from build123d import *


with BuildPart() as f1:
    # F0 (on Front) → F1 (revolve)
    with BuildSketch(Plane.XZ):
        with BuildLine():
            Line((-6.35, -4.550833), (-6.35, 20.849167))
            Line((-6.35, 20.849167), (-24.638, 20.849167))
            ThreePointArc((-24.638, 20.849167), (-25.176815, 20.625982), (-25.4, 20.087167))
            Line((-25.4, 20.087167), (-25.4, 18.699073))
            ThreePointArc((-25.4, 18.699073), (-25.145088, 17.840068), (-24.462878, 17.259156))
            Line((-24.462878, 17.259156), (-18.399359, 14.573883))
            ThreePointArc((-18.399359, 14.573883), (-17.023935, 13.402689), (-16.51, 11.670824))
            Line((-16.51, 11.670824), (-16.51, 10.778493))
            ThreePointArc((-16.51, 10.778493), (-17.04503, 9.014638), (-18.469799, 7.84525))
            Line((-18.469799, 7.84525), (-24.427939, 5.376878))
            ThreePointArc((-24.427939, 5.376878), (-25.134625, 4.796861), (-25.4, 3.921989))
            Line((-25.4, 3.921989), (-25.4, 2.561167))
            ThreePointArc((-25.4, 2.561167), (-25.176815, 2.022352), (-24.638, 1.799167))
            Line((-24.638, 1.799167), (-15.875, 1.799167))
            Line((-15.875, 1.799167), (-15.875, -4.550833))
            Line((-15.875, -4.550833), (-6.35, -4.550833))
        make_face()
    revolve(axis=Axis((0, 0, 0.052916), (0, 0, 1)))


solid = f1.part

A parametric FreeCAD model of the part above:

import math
import FreeCAD as App
import Part
import Sketcher

V = App.Vector
Q = App.Units.Quantity

doc = App.newDocument("Part")
body = doc.addObject("PartDesign::Body", "Body")

sketch1 = body.newObject("Sketcher::SketchObject", "Sketch")
sketch1.AttachmentSupport = (doc.getObject("XZ_Plane"), [""])
sketch1.MapMode = "FlatFace"
sketch1.addGeometry([
    Part.LineSegment(V(-6.3, -4.6, 0), V(-6.3, 20.8, 0)),
    Part.LineSegment(V(-6.3, 20.8, 0), V(-24.6, 20.8, 0)),
    Part.ArcOfCircle(Part.Circle(V(-24.6, 20.1, 0), V(0, 0, 1), 0.8), math.radians(90), math.radians(180)),
    Part.LineSegment(V(-25.4, 20.1, 0), V(-25.4, 18.7, 0)),
    Part.ArcOfCircle(Part.Circle(V(-23.8, 18.7, 0), V(0, 0, 1), 1.6), math.radians(-180), math.radians(-114)),
    Part.LineSegment(V(-24.5, 17.3, 0), V(-18.4, 14.6, 0)),
    Part.ArcOfCircle(Part.Circle(V(-19.7, 11.7, 0), V(0, 0, 1), 3.2), math.radians(0), math.radians(66)),
    Part.LineSegment(V(-16.5, 11.7, 0), V(-16.5, 10.8, 0)),
    Part.ArcOfCircle(Part.Circle(V(-19.7, 10.8, 0), V(0, 0, 1), 3.2), math.radians(-67), math.radians(0)),
    Part.LineSegment(V(-18.5, 7.8, 0), V(-24.4, 5.4, 0)),
    Part.ArcOfCircle(Part.Circle(V(-23.8, 3.9, 0), V(0, 0, 1), 1.6), math.radians(113), math.radians(180)),
    Part.LineSegment(V(-25.4, 3.9, 0), V(-25.4, 2.6, 0)),
    Part.ArcOfCircle(Part.Circle(V(-24.6, 2.6, 0), V(0, 0, 1), 0.8), math.radians(-180), math.radians(-90)),
    Part.LineSegment(V(-24.6, 1.8, 0), V(-15.9, 1.8, 0)),
    Part.LineSegment(V(-15.9, 1.8, 0), V(-15.9, -4.6, 0)),
    Part.LineSegment(V(-15.9, -4.6, 0), V(-6.3, -4.6, 0)),
], False)
sketch1.addConstraint([
    Sketcher.Constraint("Coincident", 0, 2, 1, 1),
    Sketcher.Constraint("Tangent", 1, 2, 2, 1),
    Sketcher.Constraint("Tangent", 2, 2, 3, 1),
    Sketcher.Constraint("Tangent", 3, 2, 4, 1),
    Sketcher.Constraint("Tangent", 4, 2, 5, 1),
    Sketcher.Constraint("Tangent", 5, 2, 6, 2),
    Sketcher.Constraint("Tangent", 6, 1, 7, 1),
    Sketcher.Constraint("Tangent", 7, 2, 8, 2),
    Sketcher.Constraint("Tangent", 8, 1, 9, 1),
    Sketcher.Constraint("Tangent", 9, 2, 10, 1),
    Sketcher.Constraint("Tangent", 10, 2, 11, 1),
    Sketcher.Constraint("Tangent", 11, 2, 12, 1),
    Sketcher.Constraint("Tangent", 12, 2, 13, 1),
    Sketcher.Constraint("Coincident", 13, 2, 14, 1),
    Sketcher.Constraint("Coincident", 14, 2, 15, 1),
    Sketcher.Constraint("Coincident", 15, 2, 0, 1),
    Sketcher.Constraint("Vertical", 0),
    Sketcher.Constraint("Horizontal", 1),
    Sketcher.Constraint("Vertical", 3),
    Sketcher.Constraint("Vertical", 7),
    Sketcher.Constraint("Vertical", 11),
    Sketcher.Constraint("Horizontal", 13),
    Sketcher.Constraint("Vertical", 14),
    Sketcher.Constraint("Horizontal", 15),
    Sketcher.Constraint("Equal", 6, 8),
    Sketcher.Constraint("Equal", 4, 10),
    Sketcher.Constraint("Equal", 2, 12),
    Sketcher.Constraint("Vertical", 4, 3, 10, 3),
    Sketcher.Constraint("DistanceY", 0, 1, 0, 2, Q("1 in")),
    Sketcher.Constraint("Radius", 2, Q("0.03 in")),
    Sketcher.Constraint("DistanceX", 2, 2, -1, 1, Q("1 in")),
    Sketcher.Constraint("Radius", 4, Q("0.062 in")),
    Sketcher.Constraint("Radius", 6, Q("0.125 in")),
    Sketcher.Constraint("DistanceX", 1, 2, 1, 1, Q("0.72 in")),
    Sketcher.Constraint("DistanceY", 14, 2, 14, 1, Q("0.25 in")),
    Sketcher.Constraint("DistanceX", 7, 2, 15, 2, Q("0.4 in")),
    Sketcher.Constraint("DistanceX", 13, 1, 13, 2, Q("0.345 in")),
    Sketcher.Constraint("DistanceY", 7, 2, 7, 1, Q("0.892331 mm")),
    Sketcher.Constraint("DistanceY", 11, 2, 11, 1, Q("1.360822 mm")),
    Sketcher.Constraint("DistanceX", 8, 1, -1, 1, Q("18.469799 mm")),
    Sketcher.Constraint("DistanceY", 3, 2, 3, 1, Q("1.388094 mm")),
    Sketcher.Constraint("DistanceY", -1, 1, 10, 3, Q("3.921988 mm")),
])
revolution = body.newObject("PartDesign::Revolution", "Revolution")
revolution.Profile = sketch1
revolution.ReferenceAxis = (sketch1, ["V_Axis"])
revolution.Angle = 360

doc.recompute()
